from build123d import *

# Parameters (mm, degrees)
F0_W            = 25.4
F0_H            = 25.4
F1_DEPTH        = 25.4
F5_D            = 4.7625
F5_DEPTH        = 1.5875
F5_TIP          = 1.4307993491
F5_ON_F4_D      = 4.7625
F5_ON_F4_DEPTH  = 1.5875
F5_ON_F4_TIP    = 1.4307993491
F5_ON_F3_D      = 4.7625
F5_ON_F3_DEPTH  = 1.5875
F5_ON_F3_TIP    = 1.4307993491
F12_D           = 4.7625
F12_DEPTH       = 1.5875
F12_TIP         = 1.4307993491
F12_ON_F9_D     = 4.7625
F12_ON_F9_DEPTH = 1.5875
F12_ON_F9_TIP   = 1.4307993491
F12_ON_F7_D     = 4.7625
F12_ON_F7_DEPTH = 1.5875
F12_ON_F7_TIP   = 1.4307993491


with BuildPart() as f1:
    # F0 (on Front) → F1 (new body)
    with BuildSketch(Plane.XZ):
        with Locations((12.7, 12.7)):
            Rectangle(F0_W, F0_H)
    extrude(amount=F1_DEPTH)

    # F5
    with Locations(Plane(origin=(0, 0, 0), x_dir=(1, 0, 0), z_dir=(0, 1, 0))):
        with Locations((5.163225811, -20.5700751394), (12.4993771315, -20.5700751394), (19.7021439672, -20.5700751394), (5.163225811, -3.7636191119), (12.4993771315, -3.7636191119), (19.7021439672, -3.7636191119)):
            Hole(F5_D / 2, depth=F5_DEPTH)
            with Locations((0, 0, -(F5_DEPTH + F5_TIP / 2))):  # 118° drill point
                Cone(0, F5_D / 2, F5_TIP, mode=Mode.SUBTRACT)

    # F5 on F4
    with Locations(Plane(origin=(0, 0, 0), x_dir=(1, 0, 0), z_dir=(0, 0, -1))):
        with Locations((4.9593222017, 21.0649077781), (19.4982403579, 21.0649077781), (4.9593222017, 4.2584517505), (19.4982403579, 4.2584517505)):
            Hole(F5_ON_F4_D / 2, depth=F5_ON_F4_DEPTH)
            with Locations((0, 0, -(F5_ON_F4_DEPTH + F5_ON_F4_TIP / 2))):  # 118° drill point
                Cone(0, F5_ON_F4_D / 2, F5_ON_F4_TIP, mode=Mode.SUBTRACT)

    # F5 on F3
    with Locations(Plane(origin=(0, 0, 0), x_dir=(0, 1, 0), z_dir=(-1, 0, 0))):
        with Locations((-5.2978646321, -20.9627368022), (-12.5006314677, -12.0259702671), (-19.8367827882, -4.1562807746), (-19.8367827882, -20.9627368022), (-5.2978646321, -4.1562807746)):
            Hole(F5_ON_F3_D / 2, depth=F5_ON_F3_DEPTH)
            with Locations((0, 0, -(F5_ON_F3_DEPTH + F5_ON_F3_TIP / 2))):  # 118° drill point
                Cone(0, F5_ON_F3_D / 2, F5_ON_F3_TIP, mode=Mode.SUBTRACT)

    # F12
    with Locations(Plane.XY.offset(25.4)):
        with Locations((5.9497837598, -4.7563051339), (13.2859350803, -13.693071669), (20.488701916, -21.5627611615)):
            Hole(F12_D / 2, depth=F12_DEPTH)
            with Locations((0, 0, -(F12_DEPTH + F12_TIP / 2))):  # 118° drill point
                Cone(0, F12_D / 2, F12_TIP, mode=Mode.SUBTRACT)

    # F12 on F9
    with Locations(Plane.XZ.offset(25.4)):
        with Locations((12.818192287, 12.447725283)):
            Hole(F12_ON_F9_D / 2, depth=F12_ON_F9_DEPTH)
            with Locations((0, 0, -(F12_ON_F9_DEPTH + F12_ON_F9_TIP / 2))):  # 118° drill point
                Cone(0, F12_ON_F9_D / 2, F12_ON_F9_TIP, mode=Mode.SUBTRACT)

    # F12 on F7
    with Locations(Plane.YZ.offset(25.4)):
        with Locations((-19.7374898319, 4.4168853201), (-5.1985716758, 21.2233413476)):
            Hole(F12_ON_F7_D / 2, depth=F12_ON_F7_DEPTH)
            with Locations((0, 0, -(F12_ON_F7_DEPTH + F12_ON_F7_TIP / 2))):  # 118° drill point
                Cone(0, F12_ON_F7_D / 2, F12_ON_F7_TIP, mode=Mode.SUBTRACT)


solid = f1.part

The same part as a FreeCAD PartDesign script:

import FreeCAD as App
import Part
import Sketcher

V = App.Vector
Q = App.Units.Quantity

doc = App.newDocument("Part")
params = doc.addObject("Spreadsheet::Sheet", "Params")
for row, (alias, value) in enumerate([
    ("sketch1_width", "1 in"),
    ("pad1_length", "1 in"),
    ("sketch2_diameter", "0.1875 in"),
    ("hole_diameter", "0.1875 in"),
    ("hole_depth", "0.0625 in"),
    ("sketch3_diameter", "0.1875 in"),
    ("hole2_diameter", "0.1875 in"),
    ("hole2_depth", "0.0625 in"),
    ("sketch4_diameter", "0.1875 in"),
    ("hole3_diameter", "0.1875 in"),
    ("hole3_depth", "0.0625 in"),
    ("sketch5_diameter", "0.1875 in"),
    ("hole4_diameter", "0.1875 in"),
    ("hole4_depth", "0.0625 in"),
    ("sketch6_diameter", "0.1875 in"),
    ("hole5_diameter", "0.1875 in"),
    ("hole5_depth", "0.0625 in"),
    ("sketch7_diameter", "0.1875 in"),
    ("hole6_diameter", "0.1875 in"),
    ("hole6_depth", "0.0625 in"),
], start=1):
    params.set(f"A{row}", alias)
    params.set(f"B{row}", "=" + value)
    params.setAlias(f"B{row}", alias)

body = doc.addObject("PartDesign::Body", "Body")

# Sketch on XZ plane
sketch1 = body.newObject("Sketcher::SketchObject", "Sketch")
sketch1.AttachmentSupport = (doc.getObject("XZ_Plane"), [""])
sketch1.MapMode = "FlatFace"
sketch1.addGeometry([
    Part.LineSegment(V(0, 25, 0), V(0, 0, 0)),
    Part.LineSegment(V(0, 0, 0), V(25, 0, 0)),
    Part.LineSegment(V(25, 0, 0), V(25, 25, 0)),
    Part.LineSegment(V(25, 25, 0), V(0, 25, 0)),
], False)
sketch1.addConstraint([
    Sketcher.Constraint("Coincident", 0, 2, 1, 1),
    Sketcher.Constraint("Coincident", 1, 2, 2, 1),
    Sketcher.Constraint("Coincident", 2, 2, 3, 1),
    Sketcher.Constraint("Coincident", 3, 2, 0, 1),
    Sketcher.Constraint("Vertical", 0),
    Sketcher.Constraint("Horizontal", 1),
    Sketcher.Constraint("Vertical", 2),
    Sketcher.Constraint("Horizontal", 3),
    Sketcher.Constraint("Coincident", 0, 2, -1, 1),
    Sketcher.Constraint("Equal", 3, 0),
    Sketcher.Constraint("DistanceX", 1, 1, 1, 2, Q("1 in")),
])
sketch1.setExpression("Constraints[10]", "Params.sketch1_width")
pad1 = body.newObject("PartDesign::Pad", "Pad")
pad1.Profile = sketch1
pad1.setExpression("Length", "Params.pad1_length")

# Sketch on XZ plane
sketch2 = body.newObject("Sketcher::SketchObject", "Sketch001")
sketch2.AttachmentSupport = (doc.getObject("XZ_Plane"), [""])
sketch2.MapMode = "FlatFace"
sketch2.addGeometry([
    Part.Circle(V(5.2, 20.6, 0), V(0, 0, 1), 2.4),  # 0
    Part.Circle(V(12.5, 20.6, 0), V(0, 0, 1), 2.4),  # 1
    Part.Circle(V(19.7, 20.6, 0), V(0, 0, 1), 2.4),  # 2
    Part.Circle(V(5.2, 3.8, 0), V(0, 0, 1), 2.4),  # 3
    Part.Circle(V(12.5, 3.8, 0), V(0, 0, 1), 2.4),  # 4
    Part.Circle(V(19.7, 3.8, 0), V(0, 0, 1), 2.4),  # 5
], False)
sketch2.addConstraint([
    Sketcher.Constraint("Equal", 0, 1),
    Sketcher.Constraint("Equal", 1, 2),
    Sketcher.Constraint("Equal", 2, 3),
    Sketcher.Constraint("Equal", 3, 4),
    Sketcher.Constraint("Equal", 4, 5),
    Sketcher.Constraint("Horizontal", 0, 3, 1, 3),
    Sketcher.Constraint("Horizontal", 1, 3, 2, 3),
    Sketcher.Constraint("Horizontal", 3, 3, 4, 3),
    Sketcher.Constraint("Horizontal", 4, 3, 5, 3),
    Sketcher.Constraint("Vertical", 0, 3, 3, 3),
    Sketcher.Constraint("Vertical", 1, 3, 4, 3),
    Sketcher.Constraint("Vertical", 2, 3, 5, 3),
    Sketcher.Constraint("Diameter", 0, Q("0.1875 in")),
    Sketcher.Constraint("DistanceY", -1, 1, 3, 3, Q("3.763619 mm")),
    Sketcher.Constraint("DistanceX", 0, 3, 1, 3, Q("7.336151 mm")),
    Sketcher.Constraint("DistanceX", 0, 3, 2, 3, Q("14.538918 mm")),
    Sketcher.Constraint("DistanceX", -1, 1, 0, 3, Q("5.163226 mm")),
    Sketcher.Constraint("DistanceY", -1, 1, 0, 3, Q("20.570075 mm")),
])
sketch2.setExpression("Constraints[12]", "Params.sketch2_diameter")
doc.recompute()
hole = body.newObject("PartDesign::Hole", "Hole")
hole.Profile = sketch2
hole.ThreadType = "None"
hole.setExpression("Diameter", "Params.hole_diameter")
hole.DepthType = "Dimension"
hole.setExpression("Depth", "Params.hole_depth")
hole.DrillPoint = "Angled"
hole.DrillPointAngle = 118
hole.Reversed = True

# Sketch on XY plane
sketch3 = body.newObject("Sketcher::SketchObject", "Sketch002")
sketch3.AttachmentSupport = (doc.getObject("XY_Plane"), [""])
sketch3.MapMode = "FlatFace"
sketch3.addGeometry([
    Part.Circle(V(5, -21.1, 0), V(0, 0, 1), 2.4),
    Part.Circle(V(19.5, -21.1, 0), V(0, 0, 1), 2.4),
    Part.Circle(V(5, -4.3, 0), V(0, 0, 1), 2.4),
    Part.Circle(V(19.5, -4.3, 0), V(0, 0, 1), 2.4),
], False)
sketch3.addConstraint([
    Sketcher.Constraint("Equal", 0, 1),
    Sketcher.Constraint("Equal", 1, 2),
    Sketcher.Constraint("Equal", 2, 3),
    Sketcher.Constraint("Horizontal", 0, 3, 1, 3),
    Sketcher.Constraint("Horizontal", 2, 3, 3, 3),
    Sketcher.Constraint("Vertical", 0, 3, 2, 3),
    Sketcher.Constraint("Vertical", 1, 3, 3, 3),
    Sketcher.Constraint("Diameter", 0, Q("0.1875 in")),
    Sketcher.Constraint("DistanceX", -1, 1, 1, 3, Q("19.49824 mm")),
    Sketcher.Constraint("DistanceY", 2, 3, -1, 1, Q("4.258452 mm")),
    Sketcher.Constraint("DistanceX", 0, 3, 1, 3, Q("14.538918 mm")),
    Sketcher.Constraint("DistanceY", 0, 3, -1, 1, Q("21.064908 mm")),
])
sketch3.setExpression("Constraints[7]", "Params.sketch3_diameter")
doc.recompute()
hole2 = body.newObject("PartDesign::Hole", "Hole001")
hole2.Profile = sketch3
hole2.ThreadType = "None"
hole2.setExpression("Diameter", "Params.hole2_diameter")
hole2.DepthType = "Dimension"
hole2.setExpression("Depth", "Params.hole2_depth")
hole2.DrillPoint = "Angled"
hole2.DrillPointAngle = 118
hole2.Reversed = True

# Sketch on YZ plane
sketch4 = body.newObject("Sketcher::SketchObject", "Sketch003")
sketch4.AttachmentSupport = (doc.getObject("YZ_Plane"), [""])
sketch4.MapMode = "FlatFace"
sketch4.addGeometry([
    Part.Circle(V(-5.3, 21, 0), V(0, 0, 1), 2.4),  # 0
    Part.Circle(V(-12.5, 12, 0), V(0, 0, 1), 2.4),  # 1
    Part.Circle(V(-19.8, 4.2, 0), V(0, 0, 1), 2.4),  # 2
    Part.Circle(V(-19.8, 21, 0), V(0, 0, 1), 2.4),  # 3
    Part.Circle(V(-5.3, 4.2, 0), V(0, 0, 1), 2.4),  # 4
], False)
sketch4.addConstraint([
    Sketcher.Constraint("Equal", 0, 1),
    Sketcher.Constraint("Equal", 1, 2),
    Sketcher.Constraint("Equal", 2, 3),
    Sketcher.Constraint("Equal", 3, 4),
    Sketcher.Constraint("Horizontal", 0, 3, 3, 3),
    Sketcher.Constraint("Horizontal", 2, 3, 4, 3),
    Sketcher.Constraint("Vertical", 2, 3, 3, 3),
    Sketcher.Constraint("Vertical", 0, 3, 4, 3),
    Sketcher.Constraint("Diameter", 0, Q("0.1875 in")),
    Sketcher.Constraint("DistanceX", 1, 3, -1, 1, Q("12.500631 mm")),
    Sketcher.Constraint("DistanceY", -1, 1, 1, 3, Q("12.02597 mm")),
    Sketcher.Constraint("DistanceY", -1, 1, 2, 3, Q("4.156281 mm")),
    Sketcher.Constraint("DistanceX", 2, 3, 1, 3, Q("7.336151 mm")),
    Sketcher.Constraint("DistanceX", 2, 3, 0, 3, Q("14.538918 mm")),
    Sketcher.Constraint("DistanceY", -1, 1, 0, 3, Q("20.962737 mm")),
])
sketch4.setExpression("Constraints[8]", "Params.sketch4_diameter")
doc.recompute()
hole3 = body.newObject("PartDesign::Hole", "Hole002")
hole3.Profile = sketch4
hole3.ThreadType = "None"
hole3.setExpression("Diameter", "Params.hole3_diameter")
hole3.DepthType = "Dimension"
hole3.setExpression("Depth", "Params.hole3_depth")
hole3.DrillPoint = "Angled"
hole3.DrillPointAngle = 118
hole3.Reversed = True

# Sketch on XY plane
sketch5 = body.newObject("Sketcher::SketchObject", "Sketch004")
sketch5.AttachmentSupport = (doc.getObject("XY_Plane"), [""])
sketch5.MapMode = "FlatFace"
sketch5.AttachmentOffset = App.Placement(V(0, 0, 1 * 25.4), App.Rotation())
sketch5.addGeometry([
    Part.Circle(V(5.9, -4.8, 0), V(0, 0, 1), 2.4),
    Part.Circle(V(13.3, -13.7, 0), V(0, 0, 1), 2.4),
    Part.Circle(V(20.5, -21.6, 0), V(0, 0, 1), 2.4),
], False)
sketch5.addConstraint([
    Sketcher.Constraint("Equal", 0, 1),
    Sketcher.Constraint("Equal", 1, 2),
    Sketcher.Constraint("Diameter", 0, Q("0.1875 in")),
    Sketcher.Constraint("DistanceX", -1, 1, 2, 3, Q("20.488702 mm")),
    Sketcher.Constraint("DistanceY", 1, 3, -1, 1, Q("13.693072 mm")),
    Sketcher.Constraint("DistanceY", 2, 3, -1, 1, Q("21.562761 mm")),
    Sketcher.Constraint("DistanceX", 0, 3, 1, 3, Q("7.336151 mm")),
    Sketcher.Constraint("DistanceX", 0, 3, 2, 3, Q("14.538918 mm")),
    Sketcher.Constraint("DistanceY", 0, 3, -1, 1, Q("4.756305 mm")),
])
sketch5.setExpression("Constraints[2]", "Params.sketch5_diameter")
doc.recompute()
hole4 = body.newObject("PartDesign::Hole", "Hole003")
hole4.Profile = sketch5
hole4.ThreadType = "None"
hole4.setExpression("Diameter", "Params.hole4_diameter")
hole4.DepthType = "Dimension"
hole4.setExpression("Depth", "Params.hole4_depth")
hole4.DrillPoint = "Angled"
hole4.DrillPointAngle = 118

# Sketch on XZ plane
sketch6 = body.newObject("Sketcher::SketchObject", "Sketch005")
sketch6.AttachmentSupport = (doc.getObject("XZ_Plane"), [""])
sketch6.MapMode = "FlatFace"
sketch6.AttachmentOffset = App.Placement(V(0, 0, 1 * 25.4), App.Rotation())
sketch6.addGeometry(Part.Circle(V(12.8, 12.4, 0), V(0, 0, 1), 2.4), False)
sketch6.addConstraint([
    Sketcher.Constraint("Diameter", 0, Q("0.1875 in")),
    Sketcher.Constraint("DistanceX", -1, 1, 0, 3, Q("12.818192 mm")),
    Sketcher.Constraint("DistanceY", -1, 1, 0, 3, Q("12.447725 mm")),
])
sketch6.setExpression("Constraints[0]", "Params.sketch6_diameter")
doc.recompute()
hole5 = body.newObject("PartDesign::Hole", "Hole004")
hole5.Profile = sketch6
hole5.ThreadType = "None"
hole5.setExpression("Diameter", "Params.hole5_diameter")
hole5.DepthType = "Dimension"
hole5.setExpression("Depth", "Params.hole5_depth")
hole5.DrillPoint = "Angled"
hole5.DrillPointAngle = 118

# Sketch on YZ plane
sketch7 = body.newObject("Sketcher::SketchObject", "Sketch006")
sketch7.AttachmentSupport = (doc.getObject("YZ_Plane"), [""])
sketch7.MapMode = "FlatFace"
sketch7.AttachmentOffset = App.Placement(V(0, 0, 1 * 25.4), App.Rotation())
sketch7.addGeometry([
    Part.Circle(V(-19.7, 4.4, 0), V(0, 0, 1), 2.4),
    Part.Circle(V(-5.2, 21.2, 0), V(0, 0, 1), 2.4),
], False)
sketch7.addConstraint([
    Sketcher.Constraint("Equal", 0, 1),
    Sketcher.Constraint("Diameter", 0, Q("0.1875 in")),
    Sketcher.Constraint("DistanceX", 0, 3, -1, 1, Q("19.73749 mm")),
    Sketcher.Constraint("DistanceX", 1, 3, -1, 1, Q("5.198572 mm")),
    Sketcher.Constraint("DistanceY", -1, 1, 1, 3, Q("21.223341 mm")),
    Sketcher.Constraint("DistanceY", -1, 1, 0, 3, Q("4.416885 mm")),
])
sketch7.setExpression("Constraints[1]", "Params.sketch7_diameter")
doc.recompute()
hole6 = body.newObject("PartDesign::Hole", "Hole005")
hole6.Profile = sketch7
hole6.ThreadType = "None"
hole6.setExpression("Diameter", "Params.hole6_diameter")
hole6.DepthType = "Dimension"
hole6.setExpression("Depth", "Params.hole6_depth")
hole6.DrillPoint = "Angled"
hole6.DrillPointAngle = 118

doc.recompute()
